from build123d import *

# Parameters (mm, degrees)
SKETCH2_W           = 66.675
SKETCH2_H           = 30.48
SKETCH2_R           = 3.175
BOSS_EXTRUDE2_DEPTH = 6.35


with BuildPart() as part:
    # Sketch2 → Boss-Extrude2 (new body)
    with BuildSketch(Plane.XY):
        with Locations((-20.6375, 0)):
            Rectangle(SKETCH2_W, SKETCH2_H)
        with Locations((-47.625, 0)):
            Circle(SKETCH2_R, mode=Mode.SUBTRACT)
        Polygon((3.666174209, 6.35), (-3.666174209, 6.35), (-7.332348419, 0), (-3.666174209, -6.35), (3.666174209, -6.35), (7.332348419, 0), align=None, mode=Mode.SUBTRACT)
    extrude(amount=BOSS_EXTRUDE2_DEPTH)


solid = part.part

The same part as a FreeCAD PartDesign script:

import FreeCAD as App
import Part
import Sketcher
from FreeCAD import Vector
Q = App.Units.Quantity


def add_polygon(sketch, points):
    """Adds a closed chain of lines whose ends are joined by coincident constraints."""
    first, n = sketch.GeometryCount, len(points)
    for a, b in zip(points, points[1:] + points[:1]):
        sketch.addGeometry(Part.LineSegment(App.Vector(*a, 0), App.Vector(*b, 0)), False)
    for i in range(n):
        sketch.addConstraint(Sketcher.Constraint("Coincident", first + i, 2, first + (i + 1) % n, 1))

doc = App.newDocument("Part")
params = doc.addObject("Spreadsheet::Sheet", "Params")
for row, (alias, value) in enumerate([
    ("sketch1_diameter", "0.25 in"),
    ("sketch1_height", "1.2 in"),
    ("sketch1_width", "2.625 in"),
    ("pad1_length", "0.25 in"),
], start=1):
    params.set(f"A{row}", alias)
    params.set(f"B{row}", "=" + value)
    params.setAlias(f"B{row}", alias)

body = doc.addObject("PartDesign::Body", "Body")

# Sketch on XY plane
sketch1 = body.newObject("Sketcher::SketchObject", "Sketch")
sketch1.AttachmentSupport = (doc.getObject("XY_Plane"), [""])
sketch1.MapMode = "FlatFace"
add_polygon(sketch1, [(-53.975, 15.24), (-53.975, -15.24), (12.7, -15.24), (12.7, 15.24)])  # lines 0-3
sketch1.addGeometry(Part.Circle(Vector(-47.625, 0, 0), Vector(0, 0, 1), 3.175), False)  # 4
add_polygon(sketch1, [(-3.666174, 6.35), (3.666174, 6.35), (7.332348, 0), (3.666174, -6.35), (-3.666174, -6.35), (-7.332348, 0)])  # lines 5-10
sketch1.addConstraint(Sketcher.Constraint("Vertical", 0))
sketch1.addConstraint(Sketcher.Constraint("Horizontal", 1))
sketch1.addConstraint(Sketcher.Constraint("Vertical", 2))
sketch1.addConstraint(Sketcher.Constraint("Horizontal", 3))
sketch1.addConstraint(Sketcher.Constraint("Horizontal", 5))
sketch1.addConstraint(Sketcher.Constraint("Horizontal", 8))
sketch1.addConstraint(Sketcher.Constraint("Symmetric", 5, 2, 8, 2, -1, 1))
sketch1.addConstraint(Sketcher.Constraint("Symmetric", 6, 2, 9, 2, -1, 1))
sketch1.addConstraint(Sketcher.Constraint("PointOnObject", 4, 3, -1))
sketch1.addConstraint(Sketcher.Constraint("PointOnObject", 6, 2, -1))
sketch1.addConstraint(Sketcher.Constraint("Parallel", 7, 10))
sketch1.addConstraint(Sketcher.Constraint("Vertical", 5, 2, 7, 2))
sketch1.addConstraint(Sketcher.Constraint("Diameter", 4, Q("0.25 in")))
sketch1.addConstraint(Sketcher.Constraint("DistanceY", 0, 2, 0, 1, Q("1.2 in")))
sketch1.addConstraint(Sketcher.Constraint("Angle", 6, Q("-60 deg")))
sketch1.addConstraint(Sketcher.Constraint("DistanceY", 0, 2, -1, 1, Q("0.6 in")))
sketch1.addConstraint(Sketcher.Constraint("DistanceX", -1, 1, 1, 2, Q("0.5 in")))
sketch1.addConstraint(Sketcher.Constraint("DistanceY", 7, 2, 5, 2, Q("0.5 in")))
sketch1.addConstraint(Sketcher.Constraint("DistanceX", 1, 1, 1, 2, Q("2.625 in")))
sketch1.addConstraint(Sketcher.Constraint("DistanceX", 0, 2, 4, 3, Q("0.25 in")))
sketch1.addConstraint(Sketcher.Constraint("DistanceX", 5, 1, 5, 2, 7.332348))
sketch1.setExpression("Constraints[22]", "Params.sketch1_diameter")
sketch1.setExpression("Constraints[23]", "Params.sketch1_height")
sketch1.setExpression("Constraints[28]", "Params.sketch1_width")
pad1 = body.newObject("PartDesign::Pad", "Pad")
pad1.Profile = sketch1
pad1.setExpression("Length", "Params.pad1_length")

doc.recompute()
